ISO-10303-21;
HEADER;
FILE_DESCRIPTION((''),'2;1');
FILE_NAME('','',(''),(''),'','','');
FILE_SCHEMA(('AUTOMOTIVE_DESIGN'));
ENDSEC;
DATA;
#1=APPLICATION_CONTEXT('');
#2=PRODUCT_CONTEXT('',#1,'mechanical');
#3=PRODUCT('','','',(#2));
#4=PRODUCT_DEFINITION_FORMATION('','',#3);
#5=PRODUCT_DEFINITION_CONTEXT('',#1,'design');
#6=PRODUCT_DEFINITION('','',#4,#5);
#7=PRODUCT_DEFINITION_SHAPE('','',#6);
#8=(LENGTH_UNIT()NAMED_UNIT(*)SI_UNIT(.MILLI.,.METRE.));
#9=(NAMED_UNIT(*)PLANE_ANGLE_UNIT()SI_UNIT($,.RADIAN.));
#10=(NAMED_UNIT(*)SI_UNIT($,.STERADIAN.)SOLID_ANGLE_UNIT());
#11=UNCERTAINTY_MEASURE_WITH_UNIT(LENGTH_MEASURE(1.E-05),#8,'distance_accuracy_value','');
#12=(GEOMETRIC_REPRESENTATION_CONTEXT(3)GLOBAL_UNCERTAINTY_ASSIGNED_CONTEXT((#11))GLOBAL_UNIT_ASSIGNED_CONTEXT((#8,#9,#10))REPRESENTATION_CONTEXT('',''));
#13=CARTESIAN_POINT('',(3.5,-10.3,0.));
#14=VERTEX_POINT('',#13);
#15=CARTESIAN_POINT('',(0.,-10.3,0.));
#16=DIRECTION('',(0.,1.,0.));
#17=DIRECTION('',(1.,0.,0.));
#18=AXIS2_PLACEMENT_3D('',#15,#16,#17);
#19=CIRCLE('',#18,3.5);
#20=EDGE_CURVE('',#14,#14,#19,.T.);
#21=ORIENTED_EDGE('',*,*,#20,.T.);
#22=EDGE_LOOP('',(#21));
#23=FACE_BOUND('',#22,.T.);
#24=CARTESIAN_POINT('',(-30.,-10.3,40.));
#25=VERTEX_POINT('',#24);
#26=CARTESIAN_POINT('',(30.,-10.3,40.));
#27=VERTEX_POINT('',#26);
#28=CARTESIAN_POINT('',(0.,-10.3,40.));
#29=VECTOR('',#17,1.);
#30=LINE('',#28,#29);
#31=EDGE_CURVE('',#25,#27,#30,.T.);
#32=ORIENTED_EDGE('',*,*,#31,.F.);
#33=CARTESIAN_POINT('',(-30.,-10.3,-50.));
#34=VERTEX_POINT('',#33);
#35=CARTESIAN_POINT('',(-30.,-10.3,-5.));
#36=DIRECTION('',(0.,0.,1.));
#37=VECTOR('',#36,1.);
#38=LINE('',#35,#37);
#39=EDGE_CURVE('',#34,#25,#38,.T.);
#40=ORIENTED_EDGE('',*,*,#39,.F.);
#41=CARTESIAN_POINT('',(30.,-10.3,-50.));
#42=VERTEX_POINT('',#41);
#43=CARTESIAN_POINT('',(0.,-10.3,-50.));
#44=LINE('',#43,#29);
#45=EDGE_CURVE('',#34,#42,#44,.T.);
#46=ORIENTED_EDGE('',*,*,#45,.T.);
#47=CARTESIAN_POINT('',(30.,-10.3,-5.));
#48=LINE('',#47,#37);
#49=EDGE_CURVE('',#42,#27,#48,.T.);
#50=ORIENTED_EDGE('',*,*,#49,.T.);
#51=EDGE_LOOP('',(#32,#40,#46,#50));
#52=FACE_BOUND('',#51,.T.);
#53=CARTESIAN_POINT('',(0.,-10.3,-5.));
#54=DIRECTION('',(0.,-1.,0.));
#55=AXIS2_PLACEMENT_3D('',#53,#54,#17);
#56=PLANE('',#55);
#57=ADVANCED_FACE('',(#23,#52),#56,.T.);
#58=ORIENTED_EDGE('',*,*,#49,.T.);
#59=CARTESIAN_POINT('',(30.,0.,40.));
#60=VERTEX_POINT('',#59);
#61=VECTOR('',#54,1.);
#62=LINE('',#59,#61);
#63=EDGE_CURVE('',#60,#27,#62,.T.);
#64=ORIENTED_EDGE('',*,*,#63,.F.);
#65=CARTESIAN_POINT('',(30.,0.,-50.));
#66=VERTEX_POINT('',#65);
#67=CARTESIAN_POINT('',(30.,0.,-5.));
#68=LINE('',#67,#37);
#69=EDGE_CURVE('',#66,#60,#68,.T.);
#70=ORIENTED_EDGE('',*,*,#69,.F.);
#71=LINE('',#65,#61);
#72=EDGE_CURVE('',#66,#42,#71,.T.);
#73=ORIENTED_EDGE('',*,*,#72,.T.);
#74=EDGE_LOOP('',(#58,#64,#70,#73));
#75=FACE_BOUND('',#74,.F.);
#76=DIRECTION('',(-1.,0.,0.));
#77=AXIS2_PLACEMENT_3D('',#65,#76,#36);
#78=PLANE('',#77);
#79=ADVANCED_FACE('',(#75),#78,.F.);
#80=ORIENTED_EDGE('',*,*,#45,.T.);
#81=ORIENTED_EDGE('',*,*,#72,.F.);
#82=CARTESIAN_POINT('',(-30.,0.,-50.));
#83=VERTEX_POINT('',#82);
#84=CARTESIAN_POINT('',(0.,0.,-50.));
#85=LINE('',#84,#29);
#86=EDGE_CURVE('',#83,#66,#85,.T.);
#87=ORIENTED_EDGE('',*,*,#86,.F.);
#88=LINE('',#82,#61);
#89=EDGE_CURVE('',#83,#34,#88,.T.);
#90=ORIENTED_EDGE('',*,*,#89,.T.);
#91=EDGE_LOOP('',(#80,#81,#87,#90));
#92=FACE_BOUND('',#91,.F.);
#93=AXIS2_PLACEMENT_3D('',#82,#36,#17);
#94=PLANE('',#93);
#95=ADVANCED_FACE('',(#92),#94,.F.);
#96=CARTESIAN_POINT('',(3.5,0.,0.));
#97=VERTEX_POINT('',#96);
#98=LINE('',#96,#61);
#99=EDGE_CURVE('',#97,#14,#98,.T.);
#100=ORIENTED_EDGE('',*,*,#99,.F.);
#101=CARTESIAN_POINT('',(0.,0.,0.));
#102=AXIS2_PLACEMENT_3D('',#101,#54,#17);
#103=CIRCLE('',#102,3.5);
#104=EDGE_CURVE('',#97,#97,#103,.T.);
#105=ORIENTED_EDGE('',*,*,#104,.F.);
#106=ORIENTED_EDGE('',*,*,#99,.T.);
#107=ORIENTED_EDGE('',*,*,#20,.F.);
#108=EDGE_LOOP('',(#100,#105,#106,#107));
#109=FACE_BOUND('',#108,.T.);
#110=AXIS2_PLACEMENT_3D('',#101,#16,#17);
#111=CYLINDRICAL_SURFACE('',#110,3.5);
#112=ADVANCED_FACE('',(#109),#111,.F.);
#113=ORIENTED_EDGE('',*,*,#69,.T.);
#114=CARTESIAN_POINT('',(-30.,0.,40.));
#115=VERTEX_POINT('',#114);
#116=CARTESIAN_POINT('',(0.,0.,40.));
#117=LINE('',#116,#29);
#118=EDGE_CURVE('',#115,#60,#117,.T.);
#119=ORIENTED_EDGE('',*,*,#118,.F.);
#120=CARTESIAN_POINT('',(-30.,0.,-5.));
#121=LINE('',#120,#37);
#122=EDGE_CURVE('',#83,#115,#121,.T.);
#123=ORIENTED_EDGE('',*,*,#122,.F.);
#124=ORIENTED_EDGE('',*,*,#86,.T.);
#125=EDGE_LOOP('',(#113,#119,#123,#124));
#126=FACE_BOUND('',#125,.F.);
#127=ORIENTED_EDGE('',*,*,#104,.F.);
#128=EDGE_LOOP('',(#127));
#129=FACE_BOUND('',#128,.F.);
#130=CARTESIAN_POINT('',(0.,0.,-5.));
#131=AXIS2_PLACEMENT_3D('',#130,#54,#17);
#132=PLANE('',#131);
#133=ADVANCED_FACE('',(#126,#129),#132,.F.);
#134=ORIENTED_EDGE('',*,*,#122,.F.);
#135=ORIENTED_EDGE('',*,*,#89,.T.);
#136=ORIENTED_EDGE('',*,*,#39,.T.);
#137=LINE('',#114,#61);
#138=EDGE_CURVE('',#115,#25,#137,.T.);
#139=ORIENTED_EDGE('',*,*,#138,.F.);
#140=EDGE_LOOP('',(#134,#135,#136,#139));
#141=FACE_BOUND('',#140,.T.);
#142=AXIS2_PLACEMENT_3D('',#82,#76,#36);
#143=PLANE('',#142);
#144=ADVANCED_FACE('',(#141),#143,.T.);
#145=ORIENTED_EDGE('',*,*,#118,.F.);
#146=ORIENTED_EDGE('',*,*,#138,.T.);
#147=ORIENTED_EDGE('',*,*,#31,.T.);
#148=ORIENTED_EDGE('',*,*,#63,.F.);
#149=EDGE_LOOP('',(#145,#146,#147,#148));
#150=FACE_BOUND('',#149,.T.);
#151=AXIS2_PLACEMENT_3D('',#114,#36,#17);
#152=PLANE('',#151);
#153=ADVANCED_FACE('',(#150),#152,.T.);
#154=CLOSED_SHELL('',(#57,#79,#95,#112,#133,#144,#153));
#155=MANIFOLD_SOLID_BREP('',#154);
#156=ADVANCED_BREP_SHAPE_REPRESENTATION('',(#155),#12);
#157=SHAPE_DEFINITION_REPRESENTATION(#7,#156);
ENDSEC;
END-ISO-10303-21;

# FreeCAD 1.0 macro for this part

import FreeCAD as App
import Part
import Sketcher
from FreeCAD import Vector

doc = App.newDocument("Part")
body = doc.addObject("PartDesign::Body", "Body")

# Sketch on XZ plane
sketch1 = body.newObject("Sketcher::SketchObject", "Sketch")
sketch1.AttachmentSupport = (doc.getObject("XZ_Plane"), [""])
sketch1.MapMode = "FlatFace"
sketch1.addGeometry([
    Part.LineSegment(Vector(-30, 40, 0), Vector(-30, -50, 0)),
    Part.LineSegment(Vector(-30, -50, 0), Vector(30, -50, 0)),
    Part.LineSegment(Vector(30, -50, 0), Vector(30, 40, 0)),
    Part.LineSegment(Vector(30, 40, 0), Vector(-30, 40, 0)),
], False)
sketch1.addConstraint([
    Sketcher.Constraint("Coincident", 0, 2, 1, 1),
    Sketcher.Constraint("Coincident", 1, 2, 2, 1),
    Sketcher.Constraint("Coincident", 2, 2, 3, 1),
    Sketcher.Constraint("Coincident", 3, 2, 0, 1),
    Sketcher.Constraint("Vertical", 0),
    Sketcher.Constraint("Horizontal", 1),
    Sketcher.Constraint("Vertical", 2),
    Sketcher.Constraint("Horizontal", 3),
    Sketcher.Constraint("DistanceX", 1, 1, 1, 2, 60.0),
    Sketcher.Constraint("DistanceY", 0, 2, 0, 1, 90.0),
    Sketcher.Constraint("DistanceX", 0, 2, -1, 1, 30.0),
    Sketcher.Constraint("DistanceY", 0, 2, -1, 1, 50.0),
])
pad1 = body.newObject("PartDesign::Pad", "Pad")
pad1.Profile = sketch1
pad1.Length = 10.3

# Sketch on XZ plane
sketch2 = body.newObject("Sketcher::SketchObject", "Sketch001")
sketch2.AttachmentSupport = (doc.getObject("XZ_Plane"), [""])
sketch2.MapMode = "FlatFace"
sketch2.addGeometry(Part.Circle(Vector(0, 0, 0), Vector(0, 0, 1), 3.5), False)
sketch2.addConstraint([
    Sketcher.Constraint("Coincident", 0, 3, -1, 1),
    Sketcher.Constraint("Diameter", 0, 7.0),
])
pocket1 = body.newObject("PartDesign::Pocket", "Pocket")
pocket1.Profile = sketch2
pocket1.Length = 25.4
pocket1.Reversed = True

doc.recompute()
